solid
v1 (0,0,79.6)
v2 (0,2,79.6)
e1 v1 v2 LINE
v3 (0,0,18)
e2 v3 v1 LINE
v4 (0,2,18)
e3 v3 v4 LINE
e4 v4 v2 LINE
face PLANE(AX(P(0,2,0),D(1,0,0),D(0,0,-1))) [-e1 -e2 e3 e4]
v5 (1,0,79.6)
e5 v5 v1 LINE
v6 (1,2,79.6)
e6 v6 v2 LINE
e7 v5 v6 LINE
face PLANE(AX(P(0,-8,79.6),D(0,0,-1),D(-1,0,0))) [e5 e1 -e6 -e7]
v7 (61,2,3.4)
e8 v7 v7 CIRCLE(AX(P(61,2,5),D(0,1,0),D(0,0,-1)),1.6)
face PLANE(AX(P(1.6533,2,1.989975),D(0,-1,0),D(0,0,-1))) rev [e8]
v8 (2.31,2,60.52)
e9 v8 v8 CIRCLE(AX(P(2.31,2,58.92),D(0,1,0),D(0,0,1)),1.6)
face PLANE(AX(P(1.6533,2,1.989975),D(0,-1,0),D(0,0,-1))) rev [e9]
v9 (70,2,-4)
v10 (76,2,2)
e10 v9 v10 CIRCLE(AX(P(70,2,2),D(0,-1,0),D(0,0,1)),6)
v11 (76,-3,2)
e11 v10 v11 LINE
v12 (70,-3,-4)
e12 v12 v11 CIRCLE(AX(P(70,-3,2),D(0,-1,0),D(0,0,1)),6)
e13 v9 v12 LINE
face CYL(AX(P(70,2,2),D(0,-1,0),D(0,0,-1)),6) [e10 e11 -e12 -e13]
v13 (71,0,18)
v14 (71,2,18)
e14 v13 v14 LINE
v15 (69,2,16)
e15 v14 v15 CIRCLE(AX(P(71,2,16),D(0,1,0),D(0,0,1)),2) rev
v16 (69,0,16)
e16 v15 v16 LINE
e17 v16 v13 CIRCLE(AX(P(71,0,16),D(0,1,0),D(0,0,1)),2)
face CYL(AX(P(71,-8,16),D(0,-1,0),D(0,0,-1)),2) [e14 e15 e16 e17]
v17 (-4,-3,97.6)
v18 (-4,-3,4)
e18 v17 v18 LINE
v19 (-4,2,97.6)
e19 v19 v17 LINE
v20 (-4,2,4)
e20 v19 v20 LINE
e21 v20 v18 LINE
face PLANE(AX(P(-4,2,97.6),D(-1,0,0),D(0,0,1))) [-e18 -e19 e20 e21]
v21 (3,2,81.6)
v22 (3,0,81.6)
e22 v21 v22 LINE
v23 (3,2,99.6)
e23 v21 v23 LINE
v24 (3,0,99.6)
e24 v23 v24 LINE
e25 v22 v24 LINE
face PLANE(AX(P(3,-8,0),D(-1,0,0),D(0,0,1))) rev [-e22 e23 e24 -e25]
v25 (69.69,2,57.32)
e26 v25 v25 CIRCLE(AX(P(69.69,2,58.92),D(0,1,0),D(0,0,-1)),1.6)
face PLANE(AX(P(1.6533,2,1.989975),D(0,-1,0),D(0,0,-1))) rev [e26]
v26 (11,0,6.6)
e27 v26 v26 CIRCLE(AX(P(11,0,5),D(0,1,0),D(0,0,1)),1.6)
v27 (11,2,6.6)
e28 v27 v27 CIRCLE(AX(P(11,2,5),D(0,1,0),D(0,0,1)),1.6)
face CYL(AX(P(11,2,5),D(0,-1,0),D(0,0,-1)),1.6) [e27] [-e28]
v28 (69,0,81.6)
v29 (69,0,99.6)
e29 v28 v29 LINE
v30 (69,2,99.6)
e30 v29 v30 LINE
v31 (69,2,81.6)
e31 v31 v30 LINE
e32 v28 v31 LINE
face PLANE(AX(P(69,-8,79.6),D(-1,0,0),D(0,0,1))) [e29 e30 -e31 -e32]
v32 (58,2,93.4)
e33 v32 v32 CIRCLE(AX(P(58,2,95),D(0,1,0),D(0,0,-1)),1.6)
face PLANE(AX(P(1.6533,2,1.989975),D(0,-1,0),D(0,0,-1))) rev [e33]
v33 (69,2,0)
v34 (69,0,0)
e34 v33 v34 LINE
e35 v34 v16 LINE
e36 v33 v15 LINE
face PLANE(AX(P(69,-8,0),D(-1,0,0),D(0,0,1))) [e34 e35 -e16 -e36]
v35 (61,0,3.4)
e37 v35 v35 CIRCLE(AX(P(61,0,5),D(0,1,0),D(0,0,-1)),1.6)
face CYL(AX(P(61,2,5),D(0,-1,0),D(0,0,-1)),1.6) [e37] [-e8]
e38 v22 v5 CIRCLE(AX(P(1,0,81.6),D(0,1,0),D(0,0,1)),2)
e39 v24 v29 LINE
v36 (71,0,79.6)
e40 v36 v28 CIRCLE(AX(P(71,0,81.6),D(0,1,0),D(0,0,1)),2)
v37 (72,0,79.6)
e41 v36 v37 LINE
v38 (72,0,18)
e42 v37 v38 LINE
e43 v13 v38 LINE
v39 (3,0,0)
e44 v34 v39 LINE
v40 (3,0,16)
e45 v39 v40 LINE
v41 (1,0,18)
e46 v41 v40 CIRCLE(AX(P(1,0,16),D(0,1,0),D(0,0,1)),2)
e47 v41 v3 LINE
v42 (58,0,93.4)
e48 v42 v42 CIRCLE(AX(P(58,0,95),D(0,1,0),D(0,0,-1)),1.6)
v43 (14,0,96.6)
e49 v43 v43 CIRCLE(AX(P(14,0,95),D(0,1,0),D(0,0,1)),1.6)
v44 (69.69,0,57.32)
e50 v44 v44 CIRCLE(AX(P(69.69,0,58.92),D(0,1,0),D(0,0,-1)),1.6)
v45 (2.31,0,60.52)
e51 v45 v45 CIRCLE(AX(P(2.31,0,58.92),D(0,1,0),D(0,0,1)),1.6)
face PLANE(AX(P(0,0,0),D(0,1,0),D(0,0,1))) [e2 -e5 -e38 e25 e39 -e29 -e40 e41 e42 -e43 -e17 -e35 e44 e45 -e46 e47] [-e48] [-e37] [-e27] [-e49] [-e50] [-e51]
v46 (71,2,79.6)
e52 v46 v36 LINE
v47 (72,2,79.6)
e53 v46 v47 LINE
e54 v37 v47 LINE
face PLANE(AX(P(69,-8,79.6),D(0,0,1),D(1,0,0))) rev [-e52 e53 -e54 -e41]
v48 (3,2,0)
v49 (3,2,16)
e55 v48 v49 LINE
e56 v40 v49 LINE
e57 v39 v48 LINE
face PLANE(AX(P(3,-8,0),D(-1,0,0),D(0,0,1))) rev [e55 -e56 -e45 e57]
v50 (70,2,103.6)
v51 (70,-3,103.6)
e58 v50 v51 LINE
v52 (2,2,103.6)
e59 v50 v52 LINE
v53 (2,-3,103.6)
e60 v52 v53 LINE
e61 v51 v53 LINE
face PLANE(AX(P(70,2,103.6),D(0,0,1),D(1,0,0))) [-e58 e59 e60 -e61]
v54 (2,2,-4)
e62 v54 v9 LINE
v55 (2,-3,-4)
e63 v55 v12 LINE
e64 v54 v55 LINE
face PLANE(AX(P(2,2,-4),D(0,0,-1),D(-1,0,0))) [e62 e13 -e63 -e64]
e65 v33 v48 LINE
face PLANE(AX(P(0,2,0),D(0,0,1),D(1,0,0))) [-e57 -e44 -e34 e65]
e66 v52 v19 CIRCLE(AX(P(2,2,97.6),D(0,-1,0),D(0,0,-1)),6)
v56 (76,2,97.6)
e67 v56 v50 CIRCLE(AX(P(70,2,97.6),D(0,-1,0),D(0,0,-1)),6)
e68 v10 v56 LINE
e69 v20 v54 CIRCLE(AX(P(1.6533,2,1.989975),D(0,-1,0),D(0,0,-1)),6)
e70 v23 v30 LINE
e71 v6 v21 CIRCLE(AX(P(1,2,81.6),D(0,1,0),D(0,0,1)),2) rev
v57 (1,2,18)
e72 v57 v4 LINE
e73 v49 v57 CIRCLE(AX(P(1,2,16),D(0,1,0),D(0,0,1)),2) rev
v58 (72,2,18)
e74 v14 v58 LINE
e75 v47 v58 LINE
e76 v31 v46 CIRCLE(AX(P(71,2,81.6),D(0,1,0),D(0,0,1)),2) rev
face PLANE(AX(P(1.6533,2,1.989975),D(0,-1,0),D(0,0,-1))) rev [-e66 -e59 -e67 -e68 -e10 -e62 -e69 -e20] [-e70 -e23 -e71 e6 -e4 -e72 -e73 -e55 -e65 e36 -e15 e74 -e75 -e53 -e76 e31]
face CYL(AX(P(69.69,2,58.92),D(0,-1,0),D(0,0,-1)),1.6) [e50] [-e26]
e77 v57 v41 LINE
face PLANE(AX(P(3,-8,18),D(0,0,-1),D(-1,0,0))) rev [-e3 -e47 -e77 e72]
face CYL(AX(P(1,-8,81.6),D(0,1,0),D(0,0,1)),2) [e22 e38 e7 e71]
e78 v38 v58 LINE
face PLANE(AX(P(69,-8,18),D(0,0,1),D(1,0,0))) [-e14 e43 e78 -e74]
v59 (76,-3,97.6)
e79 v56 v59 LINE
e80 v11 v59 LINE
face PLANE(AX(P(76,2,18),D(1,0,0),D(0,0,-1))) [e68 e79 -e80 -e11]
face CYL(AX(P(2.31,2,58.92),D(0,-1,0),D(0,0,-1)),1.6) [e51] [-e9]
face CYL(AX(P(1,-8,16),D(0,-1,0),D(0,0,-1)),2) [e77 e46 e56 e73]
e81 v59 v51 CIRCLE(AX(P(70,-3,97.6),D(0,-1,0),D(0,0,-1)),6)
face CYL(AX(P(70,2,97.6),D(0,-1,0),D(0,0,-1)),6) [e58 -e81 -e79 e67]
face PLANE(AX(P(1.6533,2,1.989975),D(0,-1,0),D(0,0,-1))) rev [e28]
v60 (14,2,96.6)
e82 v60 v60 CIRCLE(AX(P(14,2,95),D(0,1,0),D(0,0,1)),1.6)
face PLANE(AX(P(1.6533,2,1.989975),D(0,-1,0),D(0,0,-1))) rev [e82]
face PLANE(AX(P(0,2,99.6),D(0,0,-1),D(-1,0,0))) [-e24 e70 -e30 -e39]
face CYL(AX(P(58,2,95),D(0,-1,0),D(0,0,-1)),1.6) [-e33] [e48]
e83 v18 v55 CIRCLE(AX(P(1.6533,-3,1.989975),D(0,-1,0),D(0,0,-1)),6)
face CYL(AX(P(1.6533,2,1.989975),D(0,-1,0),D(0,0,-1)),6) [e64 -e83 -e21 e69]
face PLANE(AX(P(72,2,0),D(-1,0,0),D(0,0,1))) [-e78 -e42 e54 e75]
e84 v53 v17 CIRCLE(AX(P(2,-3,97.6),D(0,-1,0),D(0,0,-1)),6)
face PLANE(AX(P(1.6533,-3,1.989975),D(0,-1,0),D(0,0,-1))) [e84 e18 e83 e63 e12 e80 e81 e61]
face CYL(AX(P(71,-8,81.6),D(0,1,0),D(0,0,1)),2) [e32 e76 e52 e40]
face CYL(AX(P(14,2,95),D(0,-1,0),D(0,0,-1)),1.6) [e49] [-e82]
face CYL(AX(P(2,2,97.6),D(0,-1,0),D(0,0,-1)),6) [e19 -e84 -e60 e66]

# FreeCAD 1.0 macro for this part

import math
import FreeCAD as App
import Part
import Sketcher


def edges_at(feature, points):
    """Names of the edges that pass closest to the given points."""
    edges = feature.Shape.Edges
    near = lambda p: min(range(len(edges)), key=lambda i: edges[i].distToShape(Part.Vertex(*p))[0])
    return sorted({f"Edge{near(p) + 1}" for p in points})


def add_polygon(sketch, points):
    """Adds a closed chain of lines whose ends are joined by coincident constraints."""
    first, n = sketch.GeometryCount, len(points)
    for a, b in zip(points, points[1:] + points[:1]):
        sketch.addGeometry(Part.LineSegment(App.Vector(*a, 0), App.Vector(*b, 0)), False)
    for i in range(n):
        sketch.addConstraint(Sketcher.Constraint("Coincident", first + i, 2, first + (i + 1) % n, 1))

doc = App.newDocument("Part")
body = doc.addObject("PartDesign::Body", "Body")

# Sketch on XZ plane
sketch1 = body.newObject("Sketcher::SketchObject", "Sketch")
sketch1.AttachmentSupport = (doc.getObject("XZ_Plane"), [""])
sketch1.MapMode = "FlatFace"
add_polygon(sketch1, [(0, 0), (0, 99.6), (72, 99.6), (72, 0)])  # lines 0-3
sketch1.addGeometry(Part.Circle(App.Vector(14, 95, 0), App.Vector(0, 0, 1), 1.6), False)  # 4
sketch1.addGeometry(Part.Circle(App.Vector(2.3, 58.9, 0), App.Vector(0, 0, 1), 1.6), False)  # 5
sketch1.addGeometry(Part.Circle(App.Vector(58, 95, 0), App.Vector(0, 0, 1), 1.6), False)  # 6
sketch1.addGeometry(Part.Circle(App.Vector(69.7, 58.9, 0), App.Vector(0, 0, 1), 1.6), False)  # 7
sketch1.addGeometry(Part.Circle(App.Vector(11, 5, 0), App.Vector(0, 0, 1), 1.6), False)  # 8
sketch1.addGeometry(Part.Circle(App.Vector(61, 5, 0), App.Vector(0, 0, 1), 1.6), False)  # 9
sketch1.addConstraint([
    Sketcher.Constraint("Vertical", 0),
    Sketcher.Constraint("Horizontal", 1),
    Sketcher.Constraint("Vertical", 2),
    Sketcher.Constraint("Horizontal", 3),
    Sketcher.Constraint("Coincident", 3, 2, -1, 1),
    Sketcher.Constraint("Equal", 4, 5),
    Sketcher.Constraint("Equal", 5, 6),
    Sketcher.Constraint("Equal", 6, 7),
    Sketcher.Constraint("Equal", 7, 8),
    Sketcher.Constraint("Equal", 8, 9),
    Sketcher.Constraint("Horizontal", 4, 3, 6, 3),
    Sketcher.Constraint("Horizontal", 5, 3, 7, 3),
    Sketcher.Constraint("Horizontal", 8, 3, 9, 3),
    Sketcher.Constraint("Diameter", 4, 3.2),
    Sketcher.Constraint("DistanceX", 1, 1, 1, 2, 72.0),
    Sketcher.Constraint("DistanceY", 0, 1, 0, 2, 99.6),
    Sketcher.Constraint("DistanceX", -1, 1, 4, 3, 14.0),
    Sketcher.Constraint("DistanceY", -1, 1, 4, 3, 95.0),
    Sketcher.Constraint("DistanceX", -1, 1, 6, 3, 58.0),
    Sketcher.Constraint("DistanceX", -1, 1, 8, 3, 11.0),
    Sketcher.Constraint("DistanceY", -1, 1, 8, 3, 5.0),
    Sketcher.Constraint("DistanceX", -1, 1, 9, 3, 61.0),
    Sketcher.Constraint("DistanceX", -1, 1, 5, 3, 2.31),
    Sketcher.Constraint("DistanceY", -1, 1, 5, 3, 58.92),
    Sketcher.Constraint("DistanceX", -1, 1, 7, 3, 69.69),
])
pad1 = body.newObject("PartDesign::Pad", "Pad")
pad1.Profile = sketch1
pad1.Length = 2
pad1.Reversed = True
doc.recompute()

fillet = body.newObject("PartDesign::Fillet", "Fillet")
fillet.Base = (pad1, edges_at(pad1, [
    (0, 1, 0),
    (72, 1, 0),
    (72, 1, 99.6),
    (0, 1, 99.6),
]))
fillet.Radius = 3

# Sketch on XZ plane
sketch2 = body.newObject("Sketcher::SketchObject", "Sketch001")
sketch2.AttachmentSupport = (doc.getObject("XZ_Plane"), [""])
sketch2.MapMode = "FlatFace"
sketch2.AttachmentOffset = App.Placement(App.Vector(0, 0, -2), App.Rotation())
add_polygon(sketch2, [(34.9, 97.4), (34.9, 101.8), (37.1, 101.8), (37.1, 97.4)])  # lines 0-3
sketch2.addConstraint([
    Sketcher.Constraint("Vertical", 0),
    Sketcher.Constraint("Horizontal", 1),
    Sketcher.Constraint("Vertical", 2),
    Sketcher.Constraint("Horizontal", 3),
    Sketcher.Constraint("DistanceY", 0, 1, 0, 2, 4.368539),
    Sketcher.Constraint("DistanceX", 1, 1, 1, 2, 2.173614),
    Sketcher.Constraint("DistanceY", -1, 1, 0, 2, 101.78427),
    Sketcher.Constraint("DistanceX", -1, 1, 0, 2, 34.913193),
])
pocket1 = body.newObject("PartDesign::Pocket", "Pocket")
pocket1.Profile = sketch2
pocket1.Length = 10
pocket1.Reversed = True

# Sketch on XZ plane
sketch3 = body.newObject("Sketcher::SketchObject", "Sketch002")
sketch3.AttachmentSupport = (doc.getObject("XZ_Plane"), [""])
sketch3.MapMode = "FlatFace"
sketch3.AttachmentOffset = App.Placement(App.Vector(0, 0, -2), App.Rotation())
sketch3.addGeometry([
    Part.LineSegment(App.Vector(3, 99.6, 0), App.Vector(3, 79.6, 0)),  # 0
    Part.LineSegment(App.Vector(3, 79.6, 0), App.Vector(0, 79.6, 0)),  # 1
    Part.LineSegment(App.Vector(0, 79.6, 0), App.Vector(0, 96.6, 0)),  # 2
    Part.ArcOfCircle(Part.Circle(App.Vector(3, 96.6, 0), App.Vector(0, 0, 1), 3), math.radians(90), math.radians(180)),  # 3
    Part.ArcOfCircle(Part.Circle(App.Vector(69, 96.6, 0), App.Vector(0, 0, 1), 3), math.radians(0), math.radians(90)),  # 4
    Part.LineSegment(App.Vector(72, 96.6, 0), App.Vector(72, 79.6, 0)),  # 5
    Part.LineSegment(App.Vector(72, 79.6, 0), App.Vector(69, 79.6, 0)),  # 6
    Part.LineSegment(App.Vector(69, 79.6, 0), App.Vector(69, 99.6, 0)),  # 7
    Part.ArcOfCircle(Part.Circle(App.Vector(3, 3, 0), App.Vector(0, 0, 1), 3), math.radians(180), math.radians(270)),  # 8
    Part.LineSegment(App.Vector(0, 3, 0), App.Vector(0, 18, 0)),  # 9
    Part.LineSegment(App.Vector(0, 18, 0), App.Vector(3, 18, 0)),  # 10
    Part.LineSegment(App.Vector(3, 18, 0), App.Vector(3, 0, 0)),  # 11
], False)
sketch3.addConstraint([
    Sketcher.Constraint("Coincident", 0, 2, 1, 1),
    Sketcher.Constraint("Coincident", 1, 2, 2, 1),
    Sketcher.Constraint("Tangent", 2, 2, 3, 2),
    Sketcher.Constraint("Coincident", 3, 1, 0, 1),
    Sketcher.Constraint("Tangent", 4, 1, 5, 1),
    Sketcher.Constraint("Coincident", 5, 2, 6, 1),
    Sketcher.Constraint("Coincident", 6, 2, 7, 1),
    Sketcher.Constraint("Coincident", 7, 2, 4, 2),
    Sketcher.Constraint("Tangent", 8, 1, 9, 1),
    Sketcher.Constraint("Coincident", 9, 2, 10, 1),
    Sketcher.Constraint("Coincident", 10, 2, 11, 1),
    Sketcher.Constraint("Coincident", 11, 2, 8, 2),
    Sketcher.Constraint("Vertical", 0),
    Sketcher.Constraint("Horizontal", 1),
    Sketcher.Constraint("Vertical", 2),
    Sketcher.Constraint("Vertical", 5),
    Sketcher.Constraint("Horizontal", 6),
    Sketcher.Constraint("Vertical", 7),
    Sketcher.Constraint("Vertical", 9),
    Sketcher.Constraint("Horizontal", 10),
    Sketcher.Constraint("Vertical", 11),
    Sketcher.Constraint("Equal", 3, 4),
    Sketcher.Constraint("Equal", 4, 8),
    Sketcher.Constraint("PointOnObject", 1, 2, -2),
    Sketcher.Constraint("PointOnObject", 8, 1, -2),
    Sketcher.Constraint("PointOnObject", 11, 2, -1),
    Sketcher.Constraint("Horizontal", 3, 3, 4, 3),
    Sketcher.Constraint("Horizontal", 1, 2, 5, 2),
    Sketcher.Constraint("Vertical", 8, 3, 0, 2),
    Sketcher.Constraint("Vertical", 4, 3, 6, 2),
    Sketcher.Constraint("Vertical", 3, 1, 10, 2),
    Sketcher.Constraint("Radius", 3, 3.0),
    Sketcher.Constraint("DistanceY", 0, 2, 0, 1, 20.0),
    Sketcher.Constraint("DistanceY", 9, 1, 9, 2, 15.0),
    Sketcher.Constraint("DistanceX", -1, 1, 4, 3, 69.0),
    Sketcher.Constraint("DistanceY", -1, 1, 3, 3, 96.6),
])
pocket2 = body.newObject("PartDesign::Pocket", "Pocket001")
pocket2.Profile = sketch3
pocket2.Length = 10
pocket2.Reversed = True
doc.recompute()

fillet2 = body.newObject("PartDesign::Fillet", "Fillet001")
fillet2.Base = (pocket2, edges_at(pocket2, [(69, 1, 79.6), (3, 1, 79.6)]))
fillet2.Radius = 2
doc.recompute()

datumplane = body.newObject("PartDesign::Plane", "DatumPlane")
datumplane.AttachmentSupport = (doc.getObject("YZ_Plane"), [""])
datumplane.MapMode = "FlatFace"
datumplane.AttachmentOffset = App.Placement(App.Vector(0, 0, 36), App.Rotation())
mirrored = body.newObject("PartDesign::Mirrored", "Mirrored")
mirrored.Originals = [pocket2]
mirrored.MirrorPlane = (datumplane, [""])
body.Tip = mirrored

# Sketch on XZ plane
sketch4 = body.newObject("Sketcher::SketchObject", "Sketch003")
sketch4.AttachmentSupport = (doc.getObject("XZ_Plane"), [""])
sketch4.MapMode = "FlatFace"
sketch4.AttachmentOffset = App.Placement(App.Vector(0, 0, -2), App.Rotation())
add_polygon(sketch4, [(34.9, 97.4), (34.9, 99.6), (37.1, 99.6), (37.1, 97.4)])  # lines 0-3
sketch4.addConstraint([
    Sketcher.Constraint("Vertical", 0),
    Sketcher.Constraint("Horizontal", 1),
    Sketcher.Constraint("Vertical", 2),
    Sketcher.Constraint("Horizontal", 3),
    Sketcher.Constraint("DistanceY", -1, 1, 0, 2, 99.6),
    Sketcher.Constraint("DistanceY", 0, 1, 0, 2, 2.18427),
    Sketcher.Constraint("DistanceX", 1, 1, 1, 2, 2.173614),
    Sketcher.Constraint("DistanceX", -1, 1, 0, 2, 34.913193),
])
pad2 = body.newObject("PartDesign::Pad", "Pad001")
pad2.Profile = sketch4
pad2.Length = 2
doc.recompute()

fillet3 = body.newObject("PartDesign::Fillet", "Fillet002")
fillet3.Base = (pad2, edges_at(pad2, [(69, 1, 18), (3, 1, 18)]))
fillet3.Radius = 2
doc.recompute()

fillet4 = body.newObject("PartDesign::Fillet", "Fillet003")
fillet4.Base = (fillet3, edges_at(fillet3, [(3, 1, 79.6), (69, 1, 79.6)]))
fillet4.Radius = 2
body2 = doc.addObject("PartDesign::Body", "Body001")

# Sketch on XZ plane
sketch5 = body2.newObject("Sketcher::SketchObject", "Sketch004")
sketch5.AttachmentSupport = (doc.getObject("XZ_Plane001"), [""])
sketch5.MapMode = "FlatFace"
sketch5.AttachmentOffset = App.Placement(App.Vector(0, 0, 3), App.Rotation())
sketch5.addGeometry([
    Part.LineSegment(App.Vector(2, -4, 0), App.Vector(70, -4, 0)),  # 0
    Part.ArcOfCircle(Part.Circle(App.Vector(70, 2, 0), App.Vector(0, 0, 1), 6), math.radians(-90), math.radians(0)),  # 1
    Part.LineSegment(App.Vector(76, 2, 0), App.Vector(76, 98, 0)),  # 2
    Part.ArcOfCircle(Part.Circle(App.Vector(70, 98, 0), App.Vector(0, 0, 1), 6), math.radians(0), math.radians(90)),  # 3
    Part.LineSegment(App.Vector(70, 104, 0), App.Vector(2, 104, 0)),  # 4
    Part.ArcOfCircle(Part.Circle(App.Vector(2, 98, 0), App.Vector(0, 0, 1), 6), math.radians(90), math.radians(180)),  # 5
    Part.LineSegment(App.Vector(-4, 98, 0), App.Vector(-4, 4, 0)),  # 6
    Part.ArcOfCircle(Part.Circle(App.Vector(2, 2, 0), App.Vector(0, 0, 1), 6), math.radians(160), math.radians(273)),  # 7
], False)
sketch5.addConstraint([
    Sketcher.Constraint("Tangent", 0, 2, 1, 1),
    Sketcher.Constraint("Tangent", 1, 2, 2, 1),
    Sketcher.Constraint("Tangent", 2, 2, 3, 1),
    Sketcher.Constraint("Tangent", 3, 2, 4, 1),
    Sketcher.Constraint("Tangent", 4, 2, 5, 1),
    Sketcher.Constraint("Tangent", 5, 2, 6, 1),
    Sketcher.Constraint("Coincident", 6, 2, 7, 1),
    Sketcher.Constraint("Coincident", 7, 2, 0, 1),
    Sketcher.Constraint("Horizontal", 0),
    Sketcher.Constraint("Vertical", 2),
    Sketcher.Constraint("Horizontal", 4),
    Sketcher.Constraint("Vertical", 6),
    Sketcher.Constraint("Equal", 1, 3),
    Sketcher.Constraint("Equal", 3, 5),
    Sketcher.Constraint("Equal", 5, 7),
    Sketcher.Constraint("Vertical", 4, 2, 7, 2),
    Sketcher.Constraint("Radius", 1, 6.0),
    Sketcher.Constraint("DistanceX", 0, 1, 0, 2, 68.0),
    Sketcher.Constraint("DistanceY", 2, 1, 2, 2, 95.6),
    Sketcher.Constraint("DistanceY", 6, 2, 6, 1, 93.6),
    Sketcher.Constraint("DistanceX", -1, 1, 1, 3, 70.0),
    Sketcher.Constraint("DistanceY", -1, 1, 1, 3, 2.0),
])
pad3 = body2.newObject("PartDesign::Pad", "Pad002")
pad3.Profile = sketch5
pad3.Length = 5
pad3.Reversed = True
doc.recompute()

boolean = body2.newObject("PartDesign::Boolean", "Boolean")
boolean.Type = "Cut"
boolean.addObjects([body])

doc.recompute()
